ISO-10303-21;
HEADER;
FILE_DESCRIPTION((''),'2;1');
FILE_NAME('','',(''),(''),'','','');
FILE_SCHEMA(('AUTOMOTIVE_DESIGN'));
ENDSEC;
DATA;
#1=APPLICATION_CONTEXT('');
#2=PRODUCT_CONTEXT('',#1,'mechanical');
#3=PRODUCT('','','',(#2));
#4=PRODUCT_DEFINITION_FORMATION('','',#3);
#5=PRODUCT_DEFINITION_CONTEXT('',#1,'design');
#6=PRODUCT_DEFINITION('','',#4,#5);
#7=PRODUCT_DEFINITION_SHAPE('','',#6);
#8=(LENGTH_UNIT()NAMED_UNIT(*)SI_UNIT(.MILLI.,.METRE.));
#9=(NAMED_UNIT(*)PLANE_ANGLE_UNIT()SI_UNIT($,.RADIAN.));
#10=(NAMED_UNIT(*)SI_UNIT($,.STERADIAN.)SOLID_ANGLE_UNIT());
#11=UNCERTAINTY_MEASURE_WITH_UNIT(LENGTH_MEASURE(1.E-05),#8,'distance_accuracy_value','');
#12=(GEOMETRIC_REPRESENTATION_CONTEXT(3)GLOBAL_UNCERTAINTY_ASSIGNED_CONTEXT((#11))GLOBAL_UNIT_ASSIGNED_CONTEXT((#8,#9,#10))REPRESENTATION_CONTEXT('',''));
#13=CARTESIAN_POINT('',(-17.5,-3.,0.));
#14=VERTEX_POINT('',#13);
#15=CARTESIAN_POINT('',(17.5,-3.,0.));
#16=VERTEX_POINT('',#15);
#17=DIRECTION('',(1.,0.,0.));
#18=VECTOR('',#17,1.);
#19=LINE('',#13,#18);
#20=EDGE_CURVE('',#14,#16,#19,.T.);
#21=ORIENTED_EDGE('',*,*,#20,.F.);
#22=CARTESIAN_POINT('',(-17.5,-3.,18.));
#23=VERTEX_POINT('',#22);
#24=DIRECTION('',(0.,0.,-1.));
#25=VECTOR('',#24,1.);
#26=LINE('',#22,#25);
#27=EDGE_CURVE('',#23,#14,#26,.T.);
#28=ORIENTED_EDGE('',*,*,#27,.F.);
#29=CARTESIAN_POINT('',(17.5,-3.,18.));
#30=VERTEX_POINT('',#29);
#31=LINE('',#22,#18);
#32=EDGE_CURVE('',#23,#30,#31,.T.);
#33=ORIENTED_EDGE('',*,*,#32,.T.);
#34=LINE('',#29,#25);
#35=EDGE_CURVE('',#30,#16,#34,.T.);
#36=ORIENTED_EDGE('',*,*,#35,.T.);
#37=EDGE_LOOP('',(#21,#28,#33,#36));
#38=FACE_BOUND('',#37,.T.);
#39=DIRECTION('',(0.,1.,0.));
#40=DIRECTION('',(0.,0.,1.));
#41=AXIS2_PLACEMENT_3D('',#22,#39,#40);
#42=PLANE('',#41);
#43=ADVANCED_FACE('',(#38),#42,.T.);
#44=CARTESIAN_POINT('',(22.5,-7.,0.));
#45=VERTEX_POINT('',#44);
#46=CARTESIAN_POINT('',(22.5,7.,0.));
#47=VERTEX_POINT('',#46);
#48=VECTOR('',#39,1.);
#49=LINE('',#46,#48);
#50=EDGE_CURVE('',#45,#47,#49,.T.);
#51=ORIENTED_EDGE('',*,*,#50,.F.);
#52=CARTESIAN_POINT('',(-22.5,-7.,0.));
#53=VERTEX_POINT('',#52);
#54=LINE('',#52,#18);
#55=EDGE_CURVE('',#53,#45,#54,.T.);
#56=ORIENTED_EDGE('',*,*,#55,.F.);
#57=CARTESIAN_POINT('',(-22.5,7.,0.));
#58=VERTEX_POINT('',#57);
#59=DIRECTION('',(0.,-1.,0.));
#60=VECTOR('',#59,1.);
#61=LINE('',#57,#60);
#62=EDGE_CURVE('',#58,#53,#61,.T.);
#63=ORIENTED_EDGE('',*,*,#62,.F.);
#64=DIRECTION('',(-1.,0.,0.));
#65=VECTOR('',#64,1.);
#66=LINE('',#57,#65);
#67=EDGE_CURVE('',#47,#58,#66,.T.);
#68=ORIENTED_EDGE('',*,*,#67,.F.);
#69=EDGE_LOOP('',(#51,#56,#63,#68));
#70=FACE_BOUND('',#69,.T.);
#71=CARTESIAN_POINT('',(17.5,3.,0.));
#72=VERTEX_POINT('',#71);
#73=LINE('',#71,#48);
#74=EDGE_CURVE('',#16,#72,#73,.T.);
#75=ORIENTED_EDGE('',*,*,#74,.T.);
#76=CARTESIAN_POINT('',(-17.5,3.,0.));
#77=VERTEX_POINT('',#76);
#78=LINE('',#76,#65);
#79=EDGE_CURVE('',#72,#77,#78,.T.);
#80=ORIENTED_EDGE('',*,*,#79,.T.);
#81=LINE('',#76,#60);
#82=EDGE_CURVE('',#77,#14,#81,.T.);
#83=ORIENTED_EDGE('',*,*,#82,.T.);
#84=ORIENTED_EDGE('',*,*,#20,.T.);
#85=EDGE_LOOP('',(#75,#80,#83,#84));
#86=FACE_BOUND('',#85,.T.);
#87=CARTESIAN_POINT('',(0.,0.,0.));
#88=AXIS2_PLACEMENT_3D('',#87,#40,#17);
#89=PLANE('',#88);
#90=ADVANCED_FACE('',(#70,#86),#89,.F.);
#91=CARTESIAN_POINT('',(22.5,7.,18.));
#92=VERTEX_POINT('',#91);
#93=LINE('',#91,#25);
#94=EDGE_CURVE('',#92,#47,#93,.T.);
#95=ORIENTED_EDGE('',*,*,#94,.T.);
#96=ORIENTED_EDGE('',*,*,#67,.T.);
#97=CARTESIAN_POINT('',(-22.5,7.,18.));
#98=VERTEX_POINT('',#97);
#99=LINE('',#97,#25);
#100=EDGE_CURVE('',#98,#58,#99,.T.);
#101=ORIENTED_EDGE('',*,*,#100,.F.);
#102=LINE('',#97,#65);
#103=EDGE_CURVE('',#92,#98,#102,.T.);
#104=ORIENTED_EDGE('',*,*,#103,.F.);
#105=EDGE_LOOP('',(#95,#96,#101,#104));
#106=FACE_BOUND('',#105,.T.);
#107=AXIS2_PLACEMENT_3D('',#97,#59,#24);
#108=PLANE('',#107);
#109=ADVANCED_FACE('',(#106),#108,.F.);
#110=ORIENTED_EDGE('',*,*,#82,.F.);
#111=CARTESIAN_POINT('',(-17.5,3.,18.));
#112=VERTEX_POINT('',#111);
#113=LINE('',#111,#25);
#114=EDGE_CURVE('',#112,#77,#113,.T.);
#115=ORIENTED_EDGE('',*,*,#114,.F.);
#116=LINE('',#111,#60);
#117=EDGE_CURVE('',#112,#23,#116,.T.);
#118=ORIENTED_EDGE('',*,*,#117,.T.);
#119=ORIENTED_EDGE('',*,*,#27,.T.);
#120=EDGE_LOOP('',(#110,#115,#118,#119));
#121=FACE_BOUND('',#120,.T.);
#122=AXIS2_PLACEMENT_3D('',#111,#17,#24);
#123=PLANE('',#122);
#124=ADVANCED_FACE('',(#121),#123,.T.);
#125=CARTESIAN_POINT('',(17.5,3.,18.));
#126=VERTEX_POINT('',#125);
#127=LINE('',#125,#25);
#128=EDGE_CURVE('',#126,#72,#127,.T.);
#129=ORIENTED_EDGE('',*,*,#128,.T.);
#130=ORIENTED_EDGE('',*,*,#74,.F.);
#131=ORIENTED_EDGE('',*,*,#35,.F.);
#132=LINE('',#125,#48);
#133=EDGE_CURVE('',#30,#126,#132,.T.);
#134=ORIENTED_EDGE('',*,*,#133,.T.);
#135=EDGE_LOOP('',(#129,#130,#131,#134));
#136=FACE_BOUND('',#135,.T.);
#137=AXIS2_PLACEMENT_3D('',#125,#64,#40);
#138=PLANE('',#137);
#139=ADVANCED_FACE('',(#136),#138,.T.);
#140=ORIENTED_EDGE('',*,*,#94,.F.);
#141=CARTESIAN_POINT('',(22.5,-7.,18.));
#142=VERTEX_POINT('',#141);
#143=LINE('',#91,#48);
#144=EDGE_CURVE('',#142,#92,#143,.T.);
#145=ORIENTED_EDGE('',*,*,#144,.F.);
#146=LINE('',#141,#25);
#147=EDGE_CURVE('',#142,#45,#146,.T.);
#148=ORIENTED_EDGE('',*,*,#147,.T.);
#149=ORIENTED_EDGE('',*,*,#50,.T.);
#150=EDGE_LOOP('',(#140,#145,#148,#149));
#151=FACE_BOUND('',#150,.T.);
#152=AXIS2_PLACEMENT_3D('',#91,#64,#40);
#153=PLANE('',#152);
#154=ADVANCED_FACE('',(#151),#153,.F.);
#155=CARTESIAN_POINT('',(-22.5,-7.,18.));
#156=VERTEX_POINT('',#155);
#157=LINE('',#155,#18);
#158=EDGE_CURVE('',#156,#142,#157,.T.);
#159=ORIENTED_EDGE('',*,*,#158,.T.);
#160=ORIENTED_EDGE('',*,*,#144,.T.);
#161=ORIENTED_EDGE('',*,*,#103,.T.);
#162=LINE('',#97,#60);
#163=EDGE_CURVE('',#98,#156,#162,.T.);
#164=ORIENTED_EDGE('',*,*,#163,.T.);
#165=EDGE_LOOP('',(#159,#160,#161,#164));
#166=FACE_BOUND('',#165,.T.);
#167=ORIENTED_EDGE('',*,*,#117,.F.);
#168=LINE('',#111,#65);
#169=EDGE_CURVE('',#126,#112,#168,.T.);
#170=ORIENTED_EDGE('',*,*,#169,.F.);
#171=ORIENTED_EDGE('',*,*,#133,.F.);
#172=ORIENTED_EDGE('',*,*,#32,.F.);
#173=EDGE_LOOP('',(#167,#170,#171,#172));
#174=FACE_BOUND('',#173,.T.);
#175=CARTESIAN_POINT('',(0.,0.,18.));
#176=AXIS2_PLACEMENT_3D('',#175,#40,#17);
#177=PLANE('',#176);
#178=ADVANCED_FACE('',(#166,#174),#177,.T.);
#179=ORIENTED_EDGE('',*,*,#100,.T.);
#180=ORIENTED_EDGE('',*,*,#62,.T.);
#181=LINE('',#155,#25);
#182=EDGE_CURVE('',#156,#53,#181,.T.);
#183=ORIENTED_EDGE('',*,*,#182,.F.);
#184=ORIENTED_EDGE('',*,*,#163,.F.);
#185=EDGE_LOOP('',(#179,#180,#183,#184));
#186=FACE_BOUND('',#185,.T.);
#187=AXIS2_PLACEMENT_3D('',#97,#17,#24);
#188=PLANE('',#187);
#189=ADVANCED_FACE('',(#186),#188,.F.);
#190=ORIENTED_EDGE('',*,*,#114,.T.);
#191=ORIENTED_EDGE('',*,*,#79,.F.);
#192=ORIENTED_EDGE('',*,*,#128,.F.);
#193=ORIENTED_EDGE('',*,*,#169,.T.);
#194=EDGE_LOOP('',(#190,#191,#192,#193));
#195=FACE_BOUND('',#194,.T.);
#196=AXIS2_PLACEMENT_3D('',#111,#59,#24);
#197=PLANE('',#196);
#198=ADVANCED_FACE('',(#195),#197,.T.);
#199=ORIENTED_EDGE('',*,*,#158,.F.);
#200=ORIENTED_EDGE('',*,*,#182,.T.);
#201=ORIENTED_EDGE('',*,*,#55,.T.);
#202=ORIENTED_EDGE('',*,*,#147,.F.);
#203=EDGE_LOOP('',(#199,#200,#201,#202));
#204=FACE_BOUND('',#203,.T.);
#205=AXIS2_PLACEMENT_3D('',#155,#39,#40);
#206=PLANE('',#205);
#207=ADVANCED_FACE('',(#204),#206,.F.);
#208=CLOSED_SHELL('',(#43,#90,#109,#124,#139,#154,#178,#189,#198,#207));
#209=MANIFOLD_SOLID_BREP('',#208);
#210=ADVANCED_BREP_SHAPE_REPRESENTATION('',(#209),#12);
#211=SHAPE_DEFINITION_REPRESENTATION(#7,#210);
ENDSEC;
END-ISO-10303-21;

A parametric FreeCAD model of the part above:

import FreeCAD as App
import Part
import Sketcher


def add_polygon(sketch, points):
    """Adds a closed chain of lines whose ends are joined by coincident constraints."""
    first, n = sketch.GeometryCount, len(points)
    for a, b in zip(points, points[1:] + points[:1]):
        sketch.addGeometry(Part.LineSegment(App.Vector(*a, 0), App.Vector(*b, 0)), False)
    for i in range(n):
        sketch.addConstraint(Sketcher.Constraint("Coincident", first + i, 2, first + (i + 1) % n, 1))

doc = App.newDocument("Part")
body = doc.addObject("PartDesign::Body", "Body")

# Sketch on XY plane
sketch1 = body.newObject("Sketcher::SketchObject", "Sketch")
sketch1.AttachmentSupport = (doc.getObject("XY_Plane"), [""])
sketch1.MapMode = "FlatFace"
add_polygon(sketch1, [(-22, 7), (-22, -7), (22, -7), (22, 7)])  # lines 0-3
add_polygon(sketch1, [(18, -3), (-18, -3), (-18, 3), (18, 3)])  # lines 4-7
sketch1.addConstraint(Sketcher.Constraint("Vertical", 0))
sketch1.addConstraint(Sketcher.Constraint("Horizontal", 1))
sketch1.addConstraint(Sketcher.Constraint("Vertical", 2))
sketch1.addConstraint(Sketcher.Constraint("Horizontal", 3))
sketch1.addConstraint(Sketcher.Constraint("Horizontal", 4))
sketch1.addConstraint(Sketcher.Constraint("Vertical", 5))
sketch1.addConstraint(Sketcher.Constraint("Horizontal", 6))
sketch1.addConstraint(Sketcher.Constraint("Vertical", 7))
sketch1.addConstraint(Sketcher.Constraint("Symmetric", 0, 2, 2, 2, -1, 1))
sketch1.addConstraint(Sketcher.Constraint("Symmetric", 4, 2, 6, 2, -1, 1))
sketch1.addConstraint(Sketcher.Constraint("DistanceX", 1, 1, 1, 2, 45.0))
sketch1.addConstraint(Sketcher.Constraint("DistanceX", 4, 2, 4, 1, 35.0))
sketch1.addConstraint(Sketcher.Constraint("DistanceY", 0, 2, 0, 1, 14.0))
sketch1.addConstraint(Sketcher.Constraint("DistanceY", 5, 1, 5, 2, 6.0))
pad1 = body.newObject("PartDesign::Pad", "Pad")
pad1.Profile = sketch1
pad1.Length = 18

doc.recompute()
